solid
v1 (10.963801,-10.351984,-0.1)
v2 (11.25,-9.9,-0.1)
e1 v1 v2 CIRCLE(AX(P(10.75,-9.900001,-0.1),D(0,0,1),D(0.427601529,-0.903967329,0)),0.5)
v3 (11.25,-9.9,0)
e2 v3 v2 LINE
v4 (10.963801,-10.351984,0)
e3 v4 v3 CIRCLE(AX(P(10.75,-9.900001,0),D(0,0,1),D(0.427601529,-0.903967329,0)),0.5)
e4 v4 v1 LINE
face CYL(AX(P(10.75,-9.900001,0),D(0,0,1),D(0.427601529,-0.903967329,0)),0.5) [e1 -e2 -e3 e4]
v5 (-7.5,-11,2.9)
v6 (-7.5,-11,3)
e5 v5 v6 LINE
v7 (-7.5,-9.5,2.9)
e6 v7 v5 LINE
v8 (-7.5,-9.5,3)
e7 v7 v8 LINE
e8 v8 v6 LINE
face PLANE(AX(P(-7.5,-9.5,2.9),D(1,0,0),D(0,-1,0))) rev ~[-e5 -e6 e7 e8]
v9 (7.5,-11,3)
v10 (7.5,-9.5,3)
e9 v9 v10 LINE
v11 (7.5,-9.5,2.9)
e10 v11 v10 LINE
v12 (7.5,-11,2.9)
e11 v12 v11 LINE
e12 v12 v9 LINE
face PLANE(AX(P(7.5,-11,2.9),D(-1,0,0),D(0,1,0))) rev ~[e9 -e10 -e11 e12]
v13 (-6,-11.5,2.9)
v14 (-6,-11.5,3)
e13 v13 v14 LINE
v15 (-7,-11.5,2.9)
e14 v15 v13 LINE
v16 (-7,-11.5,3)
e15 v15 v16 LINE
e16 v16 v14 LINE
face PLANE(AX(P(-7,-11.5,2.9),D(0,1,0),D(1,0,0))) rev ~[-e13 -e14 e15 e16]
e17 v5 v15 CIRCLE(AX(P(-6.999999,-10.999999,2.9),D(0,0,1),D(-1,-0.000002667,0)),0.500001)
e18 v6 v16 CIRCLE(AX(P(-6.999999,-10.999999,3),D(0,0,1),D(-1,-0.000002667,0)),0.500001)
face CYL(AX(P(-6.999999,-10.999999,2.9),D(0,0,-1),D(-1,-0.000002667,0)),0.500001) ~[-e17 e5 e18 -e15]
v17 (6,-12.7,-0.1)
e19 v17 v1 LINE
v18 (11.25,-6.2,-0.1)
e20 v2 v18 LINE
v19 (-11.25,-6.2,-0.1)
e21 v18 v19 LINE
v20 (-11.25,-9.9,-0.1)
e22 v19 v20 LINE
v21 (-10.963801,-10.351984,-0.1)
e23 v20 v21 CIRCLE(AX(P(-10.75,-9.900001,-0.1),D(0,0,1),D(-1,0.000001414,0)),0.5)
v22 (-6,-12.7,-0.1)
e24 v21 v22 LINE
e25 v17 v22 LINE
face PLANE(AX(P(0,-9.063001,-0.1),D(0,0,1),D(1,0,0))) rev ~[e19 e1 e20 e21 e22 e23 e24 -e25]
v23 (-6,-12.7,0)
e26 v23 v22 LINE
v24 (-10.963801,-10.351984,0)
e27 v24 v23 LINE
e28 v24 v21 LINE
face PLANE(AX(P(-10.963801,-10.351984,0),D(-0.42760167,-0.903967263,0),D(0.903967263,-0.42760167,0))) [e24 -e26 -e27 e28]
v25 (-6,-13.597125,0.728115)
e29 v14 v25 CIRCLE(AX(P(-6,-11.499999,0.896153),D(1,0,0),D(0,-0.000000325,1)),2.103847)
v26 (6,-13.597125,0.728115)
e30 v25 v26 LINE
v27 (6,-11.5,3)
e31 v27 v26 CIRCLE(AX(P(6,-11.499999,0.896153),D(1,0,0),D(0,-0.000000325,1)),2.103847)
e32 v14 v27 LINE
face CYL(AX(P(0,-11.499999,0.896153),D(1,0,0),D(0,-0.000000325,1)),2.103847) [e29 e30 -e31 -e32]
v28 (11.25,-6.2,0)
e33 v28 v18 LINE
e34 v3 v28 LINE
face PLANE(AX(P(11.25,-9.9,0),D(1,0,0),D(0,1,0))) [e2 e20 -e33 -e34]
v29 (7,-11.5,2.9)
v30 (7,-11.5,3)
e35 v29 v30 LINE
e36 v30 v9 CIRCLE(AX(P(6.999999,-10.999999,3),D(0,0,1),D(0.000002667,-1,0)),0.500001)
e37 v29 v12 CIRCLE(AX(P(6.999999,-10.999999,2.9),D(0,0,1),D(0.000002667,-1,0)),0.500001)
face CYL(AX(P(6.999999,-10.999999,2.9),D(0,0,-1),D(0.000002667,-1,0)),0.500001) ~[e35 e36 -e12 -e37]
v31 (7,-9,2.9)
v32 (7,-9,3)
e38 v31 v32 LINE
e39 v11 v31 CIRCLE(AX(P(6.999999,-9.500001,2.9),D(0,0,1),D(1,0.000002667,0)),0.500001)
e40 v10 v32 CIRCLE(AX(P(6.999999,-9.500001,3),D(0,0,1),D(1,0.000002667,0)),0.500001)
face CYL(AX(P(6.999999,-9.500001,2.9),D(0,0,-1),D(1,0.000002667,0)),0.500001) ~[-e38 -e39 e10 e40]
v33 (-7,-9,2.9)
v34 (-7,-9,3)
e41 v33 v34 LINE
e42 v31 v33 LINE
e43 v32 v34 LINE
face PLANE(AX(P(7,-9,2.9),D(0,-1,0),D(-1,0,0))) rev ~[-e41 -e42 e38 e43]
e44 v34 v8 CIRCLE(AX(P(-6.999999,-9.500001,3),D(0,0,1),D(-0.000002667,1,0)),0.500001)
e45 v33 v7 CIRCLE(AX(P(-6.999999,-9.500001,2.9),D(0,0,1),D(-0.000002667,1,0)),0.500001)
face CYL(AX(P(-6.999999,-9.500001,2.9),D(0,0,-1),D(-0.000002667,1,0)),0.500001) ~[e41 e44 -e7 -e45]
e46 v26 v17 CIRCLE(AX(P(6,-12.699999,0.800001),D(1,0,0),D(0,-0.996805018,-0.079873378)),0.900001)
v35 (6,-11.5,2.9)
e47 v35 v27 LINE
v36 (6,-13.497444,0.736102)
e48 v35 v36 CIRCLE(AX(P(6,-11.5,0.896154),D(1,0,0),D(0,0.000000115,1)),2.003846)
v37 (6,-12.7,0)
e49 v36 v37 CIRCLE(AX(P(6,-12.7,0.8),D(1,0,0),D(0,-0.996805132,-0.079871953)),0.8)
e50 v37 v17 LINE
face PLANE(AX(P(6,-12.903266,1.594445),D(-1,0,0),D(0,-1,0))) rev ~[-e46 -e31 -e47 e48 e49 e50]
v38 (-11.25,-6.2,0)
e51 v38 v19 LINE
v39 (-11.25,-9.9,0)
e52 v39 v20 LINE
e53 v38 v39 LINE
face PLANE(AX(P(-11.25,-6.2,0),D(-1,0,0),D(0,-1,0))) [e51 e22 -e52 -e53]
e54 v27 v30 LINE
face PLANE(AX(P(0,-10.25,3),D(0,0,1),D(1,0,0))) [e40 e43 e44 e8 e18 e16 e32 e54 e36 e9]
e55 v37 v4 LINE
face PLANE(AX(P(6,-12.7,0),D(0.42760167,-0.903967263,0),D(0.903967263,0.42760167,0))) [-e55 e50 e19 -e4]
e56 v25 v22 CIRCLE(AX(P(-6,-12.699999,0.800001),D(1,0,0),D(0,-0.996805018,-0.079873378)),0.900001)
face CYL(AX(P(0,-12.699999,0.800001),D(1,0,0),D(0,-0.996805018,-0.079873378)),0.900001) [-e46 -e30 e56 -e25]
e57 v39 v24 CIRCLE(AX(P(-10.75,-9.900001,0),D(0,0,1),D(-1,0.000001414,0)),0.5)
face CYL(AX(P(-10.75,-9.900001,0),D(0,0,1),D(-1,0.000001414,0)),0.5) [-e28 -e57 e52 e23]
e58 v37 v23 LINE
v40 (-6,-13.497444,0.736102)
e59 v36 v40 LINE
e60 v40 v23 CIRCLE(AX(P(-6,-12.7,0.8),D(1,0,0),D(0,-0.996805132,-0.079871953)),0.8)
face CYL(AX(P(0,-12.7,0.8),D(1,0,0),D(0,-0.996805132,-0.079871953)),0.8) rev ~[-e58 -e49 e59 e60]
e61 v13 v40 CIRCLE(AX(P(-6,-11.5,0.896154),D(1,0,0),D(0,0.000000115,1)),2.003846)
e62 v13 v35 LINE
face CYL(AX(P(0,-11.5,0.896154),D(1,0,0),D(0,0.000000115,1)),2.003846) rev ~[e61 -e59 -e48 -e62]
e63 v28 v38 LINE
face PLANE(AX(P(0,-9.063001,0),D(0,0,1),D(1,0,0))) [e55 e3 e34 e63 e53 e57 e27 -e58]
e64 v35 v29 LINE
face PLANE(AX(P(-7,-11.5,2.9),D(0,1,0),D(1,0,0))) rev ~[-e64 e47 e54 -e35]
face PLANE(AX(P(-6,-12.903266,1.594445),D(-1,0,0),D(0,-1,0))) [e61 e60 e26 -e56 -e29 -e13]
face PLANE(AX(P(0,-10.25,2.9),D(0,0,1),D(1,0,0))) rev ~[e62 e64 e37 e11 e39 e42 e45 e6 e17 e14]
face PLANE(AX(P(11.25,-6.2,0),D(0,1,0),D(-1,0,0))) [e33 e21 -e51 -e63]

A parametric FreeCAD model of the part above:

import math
import FreeCAD as App
import Part
import Sketcher

doc = App.newDocument("Part")
body = doc.addObject("PartDesign::Body", "Body")

# Sketch on YZ plane
sketch1 = body.newObject("Sketcher::SketchObject", "Sketch")
sketch1.AttachmentSupport = (doc.getObject("YZ_Plane"), [""])
sketch1.MapMode = "FlatFace"
sketch1.addGeometry([
    Part.ArcOfCircle(Part.Circle(App.Vector(-11.5, 0.896154, 0), App.Vector(0, 0, 1), 2.003846), math.radians(89.999993), math.radians(184.581235)),  # 0
    Part.LineSegment(App.Vector(-11.5, 2.9, 0), App.Vector(-11.5, 3, 0)),  # 1
    Part.ArcOfCircle(Part.Circle(App.Vector(-11.499999, 0.896153, 0), App.Vector(0, 0, 1), 2.103847), math.radians(90.000019), math.radians(184.581191)),  # 2
    Part.ArcOfCircle(Part.Circle(App.Vector(-12.699999, 0.800001, 0), App.Vector(0, 0, 1), 0.900001), math.radians(-175.418712), math.radians(-90.000041)),  # 3
    Part.LineSegment(App.Vector(-12.7, -0.1, 0), App.Vector(-12.7, 0, 0)),  # 4
    Part.ArcOfCircle(Part.Circle(App.Vector(-12.7, 0.8, 0), App.Vector(0, 0, 1), 0.8), math.radians(-175.418794), math.radians(-89.999974)),  # 5
], False)
sketch1.addConstraint([
    Sketcher.Constraint("Coincident", 0, 1, 1, 1),
    Sketcher.Constraint("Coincident", 1, 2, 2, 1),
    Sketcher.Constraint("Tangent", 2, 2, 3, 1),
    Sketcher.Constraint("Coincident", 3, 2, 4, 1),
    Sketcher.Constraint("Coincident", 4, 2, 5, 2),
    Sketcher.Constraint("Tangent", 5, 1, 0, 2),
    Sketcher.Constraint("Vertical", 1),
    Sketcher.Constraint("Vertical", 4),
    Sketcher.Constraint("Coincident", 2, 3, 0, 3),
    Sketcher.Constraint("Coincident", 5, 3, 3, 3),
    Sketcher.Constraint("PointOnObject", 4, 2, -1),
    Sketcher.Constraint("Vertical", 2, 3, 0, 1),
    Sketcher.Constraint("Vertical", 5, 3, 3, 2),
    Sketcher.Constraint("Radius", 3, 0.900001),
    Sketcher.Constraint("Radius", 5, 0.8),
    Sketcher.Constraint("DistanceY", -1, 1, 1, 2, 3.0),
    Sketcher.Constraint("DistanceX", 0, 3, -1, 1, 11.5),
    Sketcher.Constraint("DistanceX", 3, 3, -1, 1, 12.699999),
])
pad1 = body.newObject("PartDesign::Pad", "Pad")
pad1.Profile = sketch1
pad1.Length = 12
pad1.Midplane = True

# Sketch on XY plane
sketch2 = body.newObject("Sketcher::SketchObject", "Sketch001")
sketch2.AttachmentSupport = (doc.getObject("XY_Plane"), [""])
sketch2.MapMode = "FlatFace"
sketch2.AttachmentOffset = App.Placement(App.Vector(0, 0, 2.9), App.Rotation())
sketch2.addGeometry([
    Part.LineSegment(App.Vector(-7.5, -9.5, 0), App.Vector(-7.5, -11, 0)),  # 0
    Part.ArcOfCircle(Part.Circle(App.Vector(-6.999999, -10.999999, 0), App.Vector(0, 0, 1), 0.500001), math.radians(-179.999847), math.radians(-90.000153)),  # 1
    Part.LineSegment(App.Vector(-7, -11.5, 0), App.Vector(7, -11.5, 0)),  # 2
    Part.ArcOfCircle(Part.Circle(App.Vector(6.999999, -10.999999, 0), App.Vector(0, 0, 1), 0.500001), math.radians(-89.999847), math.radians(-0.000153)),  # 3
    Part.LineSegment(App.Vector(7.5, -11, 0), App.Vector(7.5, -9.5, 0)),  # 4
    Part.ArcOfCircle(Part.Circle(App.Vector(6.999999, -9.500001, 0), App.Vector(0, 0, 1), 0.500001), math.radians(0.000153), math.radians(89.999847)),  # 5
    Part.LineSegment(App.Vector(7, -9, 0), App.Vector(-7, -9, 0)),  # 6
    Part.ArcOfCircle(Part.Circle(App.Vector(-6.999999, -9.500001, 0), App.Vector(0, 0, 1), 0.500001), math.radians(90.000153), math.radians(179.999847)),  # 7
], False)
sketch2.addConstraint([
    Sketcher.Constraint("Coincident", 0, 2, 1, 1),
    Sketcher.Constraint("Coincident", 1, 2, 2, 1),
    Sketcher.Constraint("Coincident", 2, 2, 3, 1),
    Sketcher.Constraint("Coincident", 3, 2, 4, 1),
    Sketcher.Constraint("Coincident", 4, 2, 5, 1),
    Sketcher.Constraint("Coincident", 5, 2, 6, 1),
    Sketcher.Constraint("Coincident", 6, 2, 7, 1),
    Sketcher.Constraint("Coincident", 7, 2, 0, 1),
    Sketcher.Constraint("Vertical", 0),
    Sketcher.Constraint("Horizontal", 2),
    Sketcher.Constraint("Vertical", 4),
    Sketcher.Constraint("Horizontal", 6),
    Sketcher.Constraint("Equal", 1, 3),
    Sketcher.Constraint("Equal", 3, 5),
    Sketcher.Constraint("Equal", 5, 7),
    Sketcher.Constraint("Symmetric", 0, 2, 3, 2, -2),
    Sketcher.Constraint("Horizontal", 3, 3, 0, 2),
    Sketcher.Constraint("Horizontal", 7, 3, 4, 2),
    Sketcher.Constraint("Horizontal", 4, 2, 7, 2),
    Sketcher.Constraint("Vertical", 7, 3, 1, 2),
    Sketcher.Constraint("Vertical", 5, 3, 2, 2),
    Sketcher.Constraint("Vertical", 2, 2, 5, 2),
    Sketcher.Constraint("Vertical", 1, 2, 6, 2),
    Sketcher.Constraint("Radius", 1, 0.500001),
    Sketcher.Constraint("DistanceX", 2, 1, 2, 2, 14.0),
    Sketcher.Constraint("DistanceY", 0, 2, 0, 1, 1.5),
    Sketcher.Constraint("DistanceY", 1, 3, -1, 1, 10.999999),
])
pad2 = body.newObject("PartDesign::Pad", "Pad001")
pad2.Profile = sketch2
pad2.Length = 0.1

# Sketch on XY plane
sketch3 = body.newObject("Sketcher::SketchObject", "Sketch002")
sketch3.AttachmentSupport = (doc.getObject("XY_Plane"), [""])
sketch3.MapMode = "FlatFace"
sketch3.addGeometry([
    Part.LineSegment(App.Vector(-6, -12.7, 0), App.Vector(6, -12.7, 0)),  # 0
    Part.LineSegment(App.Vector(6, -12.7, 0), App.Vector(10.963801, -10.351984, 0)),  # 1
    Part.ArcOfCircle(Part.Circle(App.Vector(10.75, -9.900001, 0), App.Vector(0, 0, 1), 0.5), math.radians(-64.684557), math.radians(0.000081)),  # 2
    Part.LineSegment(App.Vector(11.25, -9.9, 0), App.Vector(11.25, -6.2, 0)),  # 3
    Part.LineSegment(App.Vector(11.25, -6.2, 0), App.Vector(-11.25, -6.2, 0)),  # 4
    Part.LineSegment(App.Vector(-11.25, -6.2, 0), App.Vector(-11.25, -9.9, 0)),  # 5
    Part.ArcOfCircle(Part.Circle(App.Vector(-10.75, -9.900001, 0), App.Vector(0, 0, 1), 0.5), math.radians(179.999919), math.radians(244.684557)),  # 6
    Part.LineSegment(App.Vector(-10.963801, -10.351984, 0), App.Vector(-6, -12.7, 0)),  # 7
], False)
sketch3.addConstraint([
    Sketcher.Constraint("Coincident", 0, 2, 1, 1),
    Sketcher.Constraint("Tangent", 1, 2, 2, 1),
    Sketcher.Constraint("Tangent", 2, 2, 3, 1),
    Sketcher.Constraint("Coincident", 3, 2, 4, 1),
    Sketcher.Constraint("Coincident", 4, 2, 5, 1),
    Sketcher.Constraint("Tangent", 5, 2, 6, 1),
    Sketcher.Constraint("Tangent", 6, 2, 7, 1),
    Sketcher.Constraint("Coincident", 7, 2, 0, 1),
    Sketcher.Constraint("Horizontal", 0),
    Sketcher.Constraint("Vertical", 3),
    Sketcher.Constraint("Horizontal", 4),
    Sketcher.Constraint("Vertical", 5),
    Sketcher.Constraint("Equal", 2, 6),
    Sketcher.Constraint("Symmetric", 2, 3, 6, 3, -2),
    Sketcher.Constraint("Horizontal", 1, 2, 6, 2),
    Sketcher.Constraint("Radius", 2, 0.5),
    Sketcher.Constraint("DistanceX", 0, 1, 0, 2, 12.0),
    Sketcher.Constraint("DistanceX", 4, 2, 4, 1, 22.5),
    Sketcher.Constraint("DistanceY", 3, 1, 3, 2, 3.7),
    Sketcher.Constraint("DistanceY", 2, 3, -1, 1, 9.900001),
    Sketcher.Constraint("DistanceY", 0, 2, -1, 1, 12.7),
])
pad3 = body.newObject("PartDesign::Pad", "Pad002")
pad3.Profile = sketch3
pad3.Length = 0.1
pad3.Reversed = True

doc.recompute()
